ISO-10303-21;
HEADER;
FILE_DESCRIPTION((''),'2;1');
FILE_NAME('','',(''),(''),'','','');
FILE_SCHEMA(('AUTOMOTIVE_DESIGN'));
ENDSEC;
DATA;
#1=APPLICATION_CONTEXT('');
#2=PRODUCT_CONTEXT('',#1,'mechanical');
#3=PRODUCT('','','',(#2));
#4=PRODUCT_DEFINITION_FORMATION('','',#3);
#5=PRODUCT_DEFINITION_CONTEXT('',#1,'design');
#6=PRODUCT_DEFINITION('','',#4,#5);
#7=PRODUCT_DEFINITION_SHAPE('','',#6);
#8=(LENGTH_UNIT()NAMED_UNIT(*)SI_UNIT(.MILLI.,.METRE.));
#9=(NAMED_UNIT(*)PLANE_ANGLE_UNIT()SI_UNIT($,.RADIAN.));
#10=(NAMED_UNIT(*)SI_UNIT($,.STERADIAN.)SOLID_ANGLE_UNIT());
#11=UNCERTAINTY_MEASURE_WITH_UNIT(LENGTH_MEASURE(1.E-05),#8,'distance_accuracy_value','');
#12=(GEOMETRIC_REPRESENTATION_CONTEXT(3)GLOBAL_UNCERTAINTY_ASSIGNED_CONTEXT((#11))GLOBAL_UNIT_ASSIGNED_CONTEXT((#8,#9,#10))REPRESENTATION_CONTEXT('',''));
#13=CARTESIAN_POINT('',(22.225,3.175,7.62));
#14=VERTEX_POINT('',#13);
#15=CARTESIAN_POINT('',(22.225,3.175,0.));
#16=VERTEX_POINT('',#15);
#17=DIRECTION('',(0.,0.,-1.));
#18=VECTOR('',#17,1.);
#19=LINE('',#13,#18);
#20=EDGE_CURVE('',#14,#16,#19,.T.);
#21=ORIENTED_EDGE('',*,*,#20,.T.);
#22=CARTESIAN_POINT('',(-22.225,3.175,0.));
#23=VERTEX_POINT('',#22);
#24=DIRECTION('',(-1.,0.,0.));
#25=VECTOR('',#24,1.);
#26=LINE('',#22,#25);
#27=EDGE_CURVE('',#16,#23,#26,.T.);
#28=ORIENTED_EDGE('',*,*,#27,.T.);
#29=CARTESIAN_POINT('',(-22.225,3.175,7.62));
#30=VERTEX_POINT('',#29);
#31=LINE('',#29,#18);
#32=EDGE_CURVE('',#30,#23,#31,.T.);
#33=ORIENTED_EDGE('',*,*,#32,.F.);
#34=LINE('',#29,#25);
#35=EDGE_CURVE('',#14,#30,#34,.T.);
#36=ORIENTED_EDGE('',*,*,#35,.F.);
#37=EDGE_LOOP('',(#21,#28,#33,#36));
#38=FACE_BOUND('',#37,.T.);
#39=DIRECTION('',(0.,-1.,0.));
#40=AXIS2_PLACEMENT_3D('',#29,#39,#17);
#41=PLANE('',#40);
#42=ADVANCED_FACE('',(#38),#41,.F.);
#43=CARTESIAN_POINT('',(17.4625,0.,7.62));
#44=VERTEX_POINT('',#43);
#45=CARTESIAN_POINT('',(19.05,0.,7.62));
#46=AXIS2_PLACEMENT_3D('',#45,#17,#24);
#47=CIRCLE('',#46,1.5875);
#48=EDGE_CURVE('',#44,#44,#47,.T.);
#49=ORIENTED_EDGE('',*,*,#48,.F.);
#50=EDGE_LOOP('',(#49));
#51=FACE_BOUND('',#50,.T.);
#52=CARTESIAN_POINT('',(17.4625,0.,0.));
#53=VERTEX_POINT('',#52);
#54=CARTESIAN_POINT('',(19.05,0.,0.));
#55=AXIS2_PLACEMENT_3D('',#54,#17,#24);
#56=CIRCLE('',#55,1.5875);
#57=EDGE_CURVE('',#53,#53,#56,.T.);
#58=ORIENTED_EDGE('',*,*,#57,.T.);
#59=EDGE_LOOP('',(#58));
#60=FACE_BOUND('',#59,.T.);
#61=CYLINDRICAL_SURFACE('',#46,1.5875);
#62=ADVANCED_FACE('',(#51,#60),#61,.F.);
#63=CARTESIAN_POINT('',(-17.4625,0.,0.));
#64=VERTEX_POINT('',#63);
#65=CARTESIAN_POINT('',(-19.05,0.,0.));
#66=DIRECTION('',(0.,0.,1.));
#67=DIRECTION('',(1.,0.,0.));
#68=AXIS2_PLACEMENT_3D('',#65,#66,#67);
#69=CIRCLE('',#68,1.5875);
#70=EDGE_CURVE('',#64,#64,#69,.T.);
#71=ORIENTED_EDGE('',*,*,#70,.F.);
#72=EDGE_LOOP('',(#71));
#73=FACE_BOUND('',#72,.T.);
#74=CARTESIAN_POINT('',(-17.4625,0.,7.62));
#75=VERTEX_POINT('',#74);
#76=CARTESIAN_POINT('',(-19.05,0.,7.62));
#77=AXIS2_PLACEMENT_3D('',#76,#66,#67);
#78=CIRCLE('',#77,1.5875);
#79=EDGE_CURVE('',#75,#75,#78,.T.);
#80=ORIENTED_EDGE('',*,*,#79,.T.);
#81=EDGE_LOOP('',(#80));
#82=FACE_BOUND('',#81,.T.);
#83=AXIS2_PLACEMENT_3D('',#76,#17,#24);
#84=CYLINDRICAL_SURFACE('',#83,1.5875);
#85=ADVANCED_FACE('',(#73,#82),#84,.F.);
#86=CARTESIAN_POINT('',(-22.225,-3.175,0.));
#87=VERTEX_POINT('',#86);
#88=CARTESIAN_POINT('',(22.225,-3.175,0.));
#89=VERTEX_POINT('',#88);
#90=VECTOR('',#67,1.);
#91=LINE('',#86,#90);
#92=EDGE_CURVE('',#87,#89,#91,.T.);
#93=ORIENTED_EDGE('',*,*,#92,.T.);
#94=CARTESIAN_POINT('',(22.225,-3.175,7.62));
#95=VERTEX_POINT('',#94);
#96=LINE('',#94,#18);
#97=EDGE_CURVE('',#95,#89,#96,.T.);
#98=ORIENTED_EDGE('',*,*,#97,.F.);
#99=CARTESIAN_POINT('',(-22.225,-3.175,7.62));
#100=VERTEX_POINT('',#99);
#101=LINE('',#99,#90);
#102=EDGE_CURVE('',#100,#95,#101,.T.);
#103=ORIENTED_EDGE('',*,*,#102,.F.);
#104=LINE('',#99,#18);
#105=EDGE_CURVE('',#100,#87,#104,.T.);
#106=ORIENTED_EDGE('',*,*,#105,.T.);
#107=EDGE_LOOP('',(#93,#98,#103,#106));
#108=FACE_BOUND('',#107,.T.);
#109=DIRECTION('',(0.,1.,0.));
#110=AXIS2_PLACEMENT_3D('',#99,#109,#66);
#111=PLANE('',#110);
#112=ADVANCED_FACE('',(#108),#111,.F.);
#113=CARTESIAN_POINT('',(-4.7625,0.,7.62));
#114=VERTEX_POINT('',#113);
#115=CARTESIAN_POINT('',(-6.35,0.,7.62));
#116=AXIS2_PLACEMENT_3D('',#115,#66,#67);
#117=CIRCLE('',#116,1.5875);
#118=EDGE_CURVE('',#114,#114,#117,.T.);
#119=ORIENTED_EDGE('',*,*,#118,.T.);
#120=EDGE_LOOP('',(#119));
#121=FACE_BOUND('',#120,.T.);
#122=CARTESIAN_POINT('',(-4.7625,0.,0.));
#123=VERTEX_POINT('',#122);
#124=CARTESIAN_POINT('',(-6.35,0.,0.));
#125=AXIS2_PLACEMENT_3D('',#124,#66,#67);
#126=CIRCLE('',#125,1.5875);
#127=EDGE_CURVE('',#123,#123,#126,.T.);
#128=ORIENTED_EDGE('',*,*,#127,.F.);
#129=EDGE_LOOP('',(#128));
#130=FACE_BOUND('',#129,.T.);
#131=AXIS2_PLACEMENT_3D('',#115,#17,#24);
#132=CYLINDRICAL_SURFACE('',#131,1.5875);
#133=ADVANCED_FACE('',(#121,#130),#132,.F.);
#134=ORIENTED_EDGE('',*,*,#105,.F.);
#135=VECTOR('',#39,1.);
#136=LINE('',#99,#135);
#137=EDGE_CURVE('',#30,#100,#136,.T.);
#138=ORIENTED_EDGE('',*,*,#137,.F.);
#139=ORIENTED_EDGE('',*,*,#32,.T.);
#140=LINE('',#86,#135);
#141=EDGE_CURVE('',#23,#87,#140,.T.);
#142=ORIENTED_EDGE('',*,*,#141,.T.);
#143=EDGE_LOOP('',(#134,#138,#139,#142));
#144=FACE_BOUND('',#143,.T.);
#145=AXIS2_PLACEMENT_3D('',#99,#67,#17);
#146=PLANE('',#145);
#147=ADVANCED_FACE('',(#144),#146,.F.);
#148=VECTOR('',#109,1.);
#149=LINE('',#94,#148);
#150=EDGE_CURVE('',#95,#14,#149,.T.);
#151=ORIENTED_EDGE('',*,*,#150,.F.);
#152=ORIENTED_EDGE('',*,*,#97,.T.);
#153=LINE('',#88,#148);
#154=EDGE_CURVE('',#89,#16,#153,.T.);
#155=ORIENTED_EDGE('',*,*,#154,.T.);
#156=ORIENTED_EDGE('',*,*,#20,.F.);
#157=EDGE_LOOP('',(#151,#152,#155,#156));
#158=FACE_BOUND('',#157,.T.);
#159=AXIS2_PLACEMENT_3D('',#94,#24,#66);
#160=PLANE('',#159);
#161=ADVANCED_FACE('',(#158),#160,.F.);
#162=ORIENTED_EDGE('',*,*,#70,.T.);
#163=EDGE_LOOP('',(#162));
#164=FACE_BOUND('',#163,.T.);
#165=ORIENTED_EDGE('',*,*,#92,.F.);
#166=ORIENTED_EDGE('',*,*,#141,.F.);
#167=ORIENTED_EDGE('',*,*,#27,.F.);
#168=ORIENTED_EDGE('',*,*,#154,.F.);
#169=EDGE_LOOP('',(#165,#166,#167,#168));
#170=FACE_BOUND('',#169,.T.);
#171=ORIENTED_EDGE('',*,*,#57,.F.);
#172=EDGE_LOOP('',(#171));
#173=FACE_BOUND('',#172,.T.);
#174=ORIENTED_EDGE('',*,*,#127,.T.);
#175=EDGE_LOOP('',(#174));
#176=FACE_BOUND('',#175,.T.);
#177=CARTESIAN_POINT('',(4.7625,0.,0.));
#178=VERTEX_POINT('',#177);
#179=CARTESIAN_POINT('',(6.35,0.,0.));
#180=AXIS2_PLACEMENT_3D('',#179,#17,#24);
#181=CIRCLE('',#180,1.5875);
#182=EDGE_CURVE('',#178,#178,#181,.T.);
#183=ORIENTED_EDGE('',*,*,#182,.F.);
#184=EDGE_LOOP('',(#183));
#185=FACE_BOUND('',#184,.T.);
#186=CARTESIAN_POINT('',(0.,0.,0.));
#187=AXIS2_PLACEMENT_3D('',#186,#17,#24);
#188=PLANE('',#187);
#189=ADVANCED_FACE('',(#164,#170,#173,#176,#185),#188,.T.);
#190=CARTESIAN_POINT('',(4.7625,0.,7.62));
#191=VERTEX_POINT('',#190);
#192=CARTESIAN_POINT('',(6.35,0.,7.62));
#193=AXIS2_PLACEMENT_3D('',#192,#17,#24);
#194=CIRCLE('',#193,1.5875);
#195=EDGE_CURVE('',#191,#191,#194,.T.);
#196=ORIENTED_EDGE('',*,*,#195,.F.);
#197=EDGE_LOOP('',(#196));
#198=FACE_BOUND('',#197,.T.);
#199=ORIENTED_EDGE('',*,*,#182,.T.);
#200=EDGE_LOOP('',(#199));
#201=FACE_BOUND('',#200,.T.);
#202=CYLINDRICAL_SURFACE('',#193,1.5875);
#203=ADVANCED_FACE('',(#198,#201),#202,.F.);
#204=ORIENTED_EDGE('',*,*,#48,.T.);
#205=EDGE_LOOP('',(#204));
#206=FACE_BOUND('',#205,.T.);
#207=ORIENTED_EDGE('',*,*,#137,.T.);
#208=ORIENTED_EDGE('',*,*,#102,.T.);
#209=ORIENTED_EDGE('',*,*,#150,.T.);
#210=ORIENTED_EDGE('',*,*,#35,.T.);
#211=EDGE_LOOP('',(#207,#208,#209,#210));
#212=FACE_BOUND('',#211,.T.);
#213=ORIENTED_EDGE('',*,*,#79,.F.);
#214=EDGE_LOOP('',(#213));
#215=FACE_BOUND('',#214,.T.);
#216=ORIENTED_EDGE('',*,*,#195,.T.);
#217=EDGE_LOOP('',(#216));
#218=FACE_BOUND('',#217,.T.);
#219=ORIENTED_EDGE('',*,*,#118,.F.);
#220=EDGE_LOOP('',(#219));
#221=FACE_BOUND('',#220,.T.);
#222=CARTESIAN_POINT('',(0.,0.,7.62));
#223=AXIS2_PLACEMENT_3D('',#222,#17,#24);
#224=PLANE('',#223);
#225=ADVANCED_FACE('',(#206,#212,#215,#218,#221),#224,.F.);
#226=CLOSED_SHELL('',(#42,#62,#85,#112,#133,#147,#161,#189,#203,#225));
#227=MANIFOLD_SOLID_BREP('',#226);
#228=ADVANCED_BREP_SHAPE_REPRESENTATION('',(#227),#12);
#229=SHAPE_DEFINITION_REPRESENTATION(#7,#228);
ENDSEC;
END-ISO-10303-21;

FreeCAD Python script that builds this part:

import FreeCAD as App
import Part
import Sketcher
from FreeCAD import Vector
Q = App.Units.Quantity


def add_polygon(sketch, points):
    """Adds a closed chain of lines whose ends are joined by coincident constraints."""
    first, n = sketch.GeometryCount, len(points)
    for a, b in zip(points, points[1:] + points[:1]):
        sketch.addGeometry(Part.LineSegment(App.Vector(*a, 0), App.Vector(*b, 0)), False)
    for i in range(n):
        sketch.addConstraint(Sketcher.Constraint("Coincident", first + i, 2, first + (i + 1) % n, 1))

doc = App.newDocument("Part")
body = doc.addObject("PartDesign::Body", "Body")

sketch1 = body.newObject("Sketcher::SketchObject", "Sketch")
sketch1.AttachmentSupport = (doc.getObject("XY_Plane"), [""])
sketch1.MapMode = "FlatFace"
add_polygon(sketch1, [(-22.225, 3.175), (-22.225, -3.175), (22.225, -3.175), (22.225, 3.175)])
sketch1.addConstraint([
    Sketcher.Constraint("Vertical", 0),
    Sketcher.Constraint("Horizontal", 1),
    Sketcher.Constraint("Vertical", 2),
    Sketcher.Constraint("Horizontal", 3),
    Sketcher.Constraint("Symmetric", 0, 2, 2, 2, -1, 1),
    Sketcher.Constraint("DistanceX", 1, 1, 1, 2, Q("1.75 in")),
    Sketcher.Constraint("DistanceY", 0, 2, 0, 1, Q("0.25 in")),
])
pad1 = body.newObject("PartDesign::Pad", "Pad")
pad1.Profile = sketch1
pad1.Length = Q("0.3 in")

sketch2 = body.newObject("Sketcher::SketchObject", "Sketch001")
sketch2.AttachmentSupport = (doc.getObject("XY_Plane"), [""])
sketch2.MapMode = "FlatFace"
sketch2.addGeometry([
    Part.Circle(Vector(6.35, 0, 0), Vector(0, 0, 1), 1.5875),
    Part.Circle(Vector(19.05, 0, 0), Vector(0, 0, 1), 1.5875),
], False)
sketch2.addConstraint([
    Sketcher.Constraint("Equal", 0, 1),
    Sketcher.Constraint("PointOnObject", 0, 3, -1),
    Sketcher.Constraint("PointOnObject", 1, 3, -1),
    Sketcher.Constraint("Diameter", 0, Q("0.125 in")),
    Sketcher.Constraint("DistanceX", 0, 3, 1, 3, Q("0.5 in")),
    Sketcher.Constraint("DistanceX", -1, 1, 0, 3, Q("0.25 in")),
])
pocket1 = body.newObject("PartDesign::Pocket", "Pocket")
pocket1.Profile = sketch2
pocket1.Type = "ThroughAll"
pocket1.Reversed = True
doc.recompute()

mirrored = body.newObject("PartDesign::Mirrored", "Mirrored")
mirrored.Originals = [pocket1]
mirrored.MirrorPlane = (doc.getObject("YZ_Plane"), [""])
body.Tip = mirrored

doc.recompute()
